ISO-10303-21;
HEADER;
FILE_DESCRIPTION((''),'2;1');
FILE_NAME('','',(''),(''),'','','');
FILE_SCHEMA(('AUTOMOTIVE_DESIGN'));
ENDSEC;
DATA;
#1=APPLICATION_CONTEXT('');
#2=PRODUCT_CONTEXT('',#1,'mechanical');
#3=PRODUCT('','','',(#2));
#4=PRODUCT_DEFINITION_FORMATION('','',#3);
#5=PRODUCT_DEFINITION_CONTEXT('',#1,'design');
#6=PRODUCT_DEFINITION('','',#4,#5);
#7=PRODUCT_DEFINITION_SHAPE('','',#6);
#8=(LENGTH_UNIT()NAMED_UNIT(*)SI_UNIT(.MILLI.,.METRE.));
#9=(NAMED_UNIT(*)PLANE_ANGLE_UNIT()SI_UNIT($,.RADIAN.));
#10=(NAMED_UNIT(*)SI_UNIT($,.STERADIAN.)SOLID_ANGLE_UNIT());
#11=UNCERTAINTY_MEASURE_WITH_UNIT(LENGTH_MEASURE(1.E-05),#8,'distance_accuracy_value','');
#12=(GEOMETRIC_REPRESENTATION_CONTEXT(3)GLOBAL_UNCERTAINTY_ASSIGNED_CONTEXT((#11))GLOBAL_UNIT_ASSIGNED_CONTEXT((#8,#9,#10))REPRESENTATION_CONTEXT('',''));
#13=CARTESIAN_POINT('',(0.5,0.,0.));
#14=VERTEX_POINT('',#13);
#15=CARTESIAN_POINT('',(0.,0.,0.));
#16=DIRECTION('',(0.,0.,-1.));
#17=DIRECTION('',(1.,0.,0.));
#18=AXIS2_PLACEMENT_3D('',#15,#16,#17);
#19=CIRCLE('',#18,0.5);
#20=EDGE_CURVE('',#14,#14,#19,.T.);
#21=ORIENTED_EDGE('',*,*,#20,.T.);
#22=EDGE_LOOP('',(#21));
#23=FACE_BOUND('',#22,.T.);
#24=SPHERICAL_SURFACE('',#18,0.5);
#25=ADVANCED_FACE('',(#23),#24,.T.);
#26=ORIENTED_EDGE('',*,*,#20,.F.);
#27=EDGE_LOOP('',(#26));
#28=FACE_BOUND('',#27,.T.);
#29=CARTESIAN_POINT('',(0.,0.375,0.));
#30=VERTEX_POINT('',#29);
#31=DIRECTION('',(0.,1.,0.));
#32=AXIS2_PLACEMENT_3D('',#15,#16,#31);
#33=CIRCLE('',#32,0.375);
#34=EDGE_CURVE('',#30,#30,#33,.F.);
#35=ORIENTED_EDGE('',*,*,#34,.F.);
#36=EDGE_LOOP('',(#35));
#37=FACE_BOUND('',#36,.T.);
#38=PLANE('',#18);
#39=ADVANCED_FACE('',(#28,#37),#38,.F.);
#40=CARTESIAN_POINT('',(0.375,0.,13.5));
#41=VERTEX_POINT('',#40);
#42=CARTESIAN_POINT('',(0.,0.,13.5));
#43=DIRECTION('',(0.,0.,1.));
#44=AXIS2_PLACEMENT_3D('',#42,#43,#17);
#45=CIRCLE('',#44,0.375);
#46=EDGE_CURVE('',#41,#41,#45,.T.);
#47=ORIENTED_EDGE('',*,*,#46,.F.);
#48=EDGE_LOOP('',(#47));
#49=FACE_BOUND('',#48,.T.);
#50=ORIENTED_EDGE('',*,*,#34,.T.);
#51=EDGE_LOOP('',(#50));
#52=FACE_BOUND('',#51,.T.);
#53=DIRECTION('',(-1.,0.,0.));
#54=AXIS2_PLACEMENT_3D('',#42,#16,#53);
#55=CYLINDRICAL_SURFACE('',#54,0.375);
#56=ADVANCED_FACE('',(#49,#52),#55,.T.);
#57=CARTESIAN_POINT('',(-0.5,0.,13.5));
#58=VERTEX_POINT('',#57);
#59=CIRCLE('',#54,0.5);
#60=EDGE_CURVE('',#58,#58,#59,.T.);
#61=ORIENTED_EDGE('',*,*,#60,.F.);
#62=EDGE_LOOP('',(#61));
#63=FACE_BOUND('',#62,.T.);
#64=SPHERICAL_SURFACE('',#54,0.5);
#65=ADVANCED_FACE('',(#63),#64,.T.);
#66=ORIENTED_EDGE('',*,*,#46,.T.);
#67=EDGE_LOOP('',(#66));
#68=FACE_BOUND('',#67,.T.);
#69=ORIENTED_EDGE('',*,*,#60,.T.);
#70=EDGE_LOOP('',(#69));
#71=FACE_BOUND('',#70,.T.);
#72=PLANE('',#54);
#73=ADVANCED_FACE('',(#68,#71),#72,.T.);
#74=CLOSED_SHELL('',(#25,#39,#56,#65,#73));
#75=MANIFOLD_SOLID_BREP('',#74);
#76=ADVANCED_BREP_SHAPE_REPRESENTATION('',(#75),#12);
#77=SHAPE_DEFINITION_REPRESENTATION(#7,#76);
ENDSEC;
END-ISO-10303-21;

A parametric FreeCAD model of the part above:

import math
import FreeCAD as App
import Part
import Sketcher

doc = App.newDocument("Part")
body = doc.addObject("PartDesign::Body", "Body")

sketch1 = body.newObject("Sketcher::SketchObject", "Sketch")
sketch1.AttachmentSupport = (doc.getObject("XY_Plane"), [""])
sketch1.MapMode = "FlatFace"
sketch1.addGeometry([
    Part.LineSegment(App.Vector(0.5, 0, 0), App.Vector(-0.5, 0, 0)),
    Part.ArcOfCircle(Part.Circle(App.Vector(0, 0, 0), App.Vector(0, 0, 1), 0.5), math.radians(180), math.radians(360)),
], False)
sketch1.addConstraint([
    Sketcher.Constraint("Coincident", 0, 1, 1, 2),
    Sketcher.Constraint("Coincident", 1, 1, 0, 2),
    Sketcher.Constraint("Horizontal", 0),
    Sketcher.Constraint("Coincident", 1, 3, -1, 1),
    Sketcher.Constraint("PointOnObject", 0, 1, -1),
    Sketcher.Constraint("Radius", 1, 0.5),
])
revolution = body.newObject("PartDesign::Revolution", "Revolution")
revolution.Profile = sketch1
revolution.ReferenceAxis = (sketch1, ["H_Axis"])
revolution.Angle = 180

sketch2 = body.newObject("Sketcher::SketchObject", "Sketch001")
sketch2.AttachmentSupport = (doc.getObject("XY_Plane"), [""])
sketch2.MapMode = "FlatFace"
sketch2.addGeometry(Part.Circle(App.Vector(0, 0, 0), App.Vector(0, 0, 1), 0.375), False)
sketch2.addConstraint([
    Sketcher.Constraint("Coincident", 0, 3, -1, 1),
    Sketcher.Constraint("Diameter", 0, 0.75),
])
pad1 = body.newObject("PartDesign::Pad", "Pad")
pad1.Profile = sketch2
pad1.Length = 13.5

sketch3 = body.newObject("Sketcher::SketchObject", "Sketch002")
sketch3.AttachmentSupport = (doc.getObject("XY_Plane"), [""])
sketch3.MapMode = "FlatFace"
sketch3.AttachmentOffset = App.Placement(App.Vector(0, 0, 13.5), App.Rotation())
sketch3.addGeometry([
    Part.LineSegment(App.Vector(0, -0.5, 0), App.Vector(0, 0.5, 0)),
    Part.ArcOfCircle(Part.Circle(App.Vector(0, 0, 0), App.Vector(0, 0, 1), 0.5), math.radians(90), math.radians(270)),
], False)
sketch3.addConstraint([
    Sketcher.Constraint("Coincident", 0, 1, 1, 2),
    Sketcher.Constraint("Coincident", 1, 1, 0, 2),
    Sketcher.Constraint("Vertical", 0),
    Sketcher.Constraint("Coincident", 1, 3, -1, 1),
    Sketcher.Constraint("PointOnObject", 0, 1, -2),
    Sketcher.Constraint("Radius", 1, 0.5),
])
revolution2 = body.newObject("PartDesign::Revolution", "Revolution001")
revolution2.Profile = sketch3
revolution2.ReferenceAxis = (sketch3, ["V_Axis"])
revolution2.Angle = 180

doc.recompute()
